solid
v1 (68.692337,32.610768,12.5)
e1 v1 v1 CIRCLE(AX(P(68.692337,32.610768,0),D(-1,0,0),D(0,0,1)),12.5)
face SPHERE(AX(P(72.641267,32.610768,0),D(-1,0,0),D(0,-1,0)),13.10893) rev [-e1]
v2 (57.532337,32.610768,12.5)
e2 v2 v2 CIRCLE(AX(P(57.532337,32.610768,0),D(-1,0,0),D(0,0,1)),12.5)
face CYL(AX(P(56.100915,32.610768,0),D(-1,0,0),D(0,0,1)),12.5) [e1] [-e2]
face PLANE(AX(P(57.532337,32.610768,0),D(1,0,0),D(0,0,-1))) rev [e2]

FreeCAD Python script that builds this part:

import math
import FreeCAD as App
import Part
import Sketcher

doc = App.newDocument("Part")
body = doc.addObject("PartDesign::Body", "Body")

sketch1 = doc.addObject("Sketcher::SketchObject", "Sketch")
body.addObject(sketch1)
sketch1.AttachmentSupport = (doc.XY_Plane, [""])
sketch1.MapMode = "FlatFace"
sketch1.addGeometry([
    Part.LineSegment(App.Vector(57.5, 45.1, 0), App.Vector(57.5, 32.6, 0)),
    Part.LineSegment(App.Vector(57.5, 32.6, 0), App.Vector(59.5, 32.6, 0)),
    Part.ArcOfCircle(Part.Circle(App.Vector(72.6, 32.6, 0), App.Vector(0, 0, 1), 13.1), math.radians(108), math.radians(180)),
    Part.LineSegment(App.Vector(68.7, 45.1, 0), App.Vector(57.5, 45.1, 0)),
], False)
sketch1.addGeometry(Part.LineSegment(App.Vector(57.5, 32.6, 0), App.Vector(72.6, 32.6, 0)), True)
sketch1.addConstraint([
    Sketcher.Constraint("Coincident", 0, 2, 1, 1),
    Sketcher.Constraint("Coincident", 1, 2, 2, 2),
    Sketcher.Constraint("Coincident", 2, 1, 3, 1),
    Sketcher.Constraint("Coincident", 3, 2, 0, 1),
    Sketcher.Constraint("Vertical", 0),
    Sketcher.Constraint("Horizontal", 1),
    Sketcher.Constraint("Horizontal", 3),
    Sketcher.Constraint("Horizontal", 4),
    Sketcher.Constraint("Coincident", 4, 1, 0, 2),
    Sketcher.Constraint("Coincident", 4, 2, 2, 3),
    Sketcher.Constraint("DistanceX", 1, 1, 1, 2, 2.0),
    Sketcher.Constraint("DistanceY", 0, 2, 0, 1, 12.5),
    Sketcher.Constraint("DistanceX", 3, 2, 3, 1, 11.16),
    Sketcher.Constraint("DistanceY", -1, 1, 2, 3, 32.610768),
    Sketcher.Constraint("DistanceX", -1, 1, 2, 3, 72.641267),
])
revolution = doc.addObject("PartDesign::Revolution", "Revolution")
body.addObject(revolution)
revolution.Profile = sketch1
revolution.ReferenceAxis = (sketch1, ["Axis0"])
revolution.Angle = 360

doc.recompute()
